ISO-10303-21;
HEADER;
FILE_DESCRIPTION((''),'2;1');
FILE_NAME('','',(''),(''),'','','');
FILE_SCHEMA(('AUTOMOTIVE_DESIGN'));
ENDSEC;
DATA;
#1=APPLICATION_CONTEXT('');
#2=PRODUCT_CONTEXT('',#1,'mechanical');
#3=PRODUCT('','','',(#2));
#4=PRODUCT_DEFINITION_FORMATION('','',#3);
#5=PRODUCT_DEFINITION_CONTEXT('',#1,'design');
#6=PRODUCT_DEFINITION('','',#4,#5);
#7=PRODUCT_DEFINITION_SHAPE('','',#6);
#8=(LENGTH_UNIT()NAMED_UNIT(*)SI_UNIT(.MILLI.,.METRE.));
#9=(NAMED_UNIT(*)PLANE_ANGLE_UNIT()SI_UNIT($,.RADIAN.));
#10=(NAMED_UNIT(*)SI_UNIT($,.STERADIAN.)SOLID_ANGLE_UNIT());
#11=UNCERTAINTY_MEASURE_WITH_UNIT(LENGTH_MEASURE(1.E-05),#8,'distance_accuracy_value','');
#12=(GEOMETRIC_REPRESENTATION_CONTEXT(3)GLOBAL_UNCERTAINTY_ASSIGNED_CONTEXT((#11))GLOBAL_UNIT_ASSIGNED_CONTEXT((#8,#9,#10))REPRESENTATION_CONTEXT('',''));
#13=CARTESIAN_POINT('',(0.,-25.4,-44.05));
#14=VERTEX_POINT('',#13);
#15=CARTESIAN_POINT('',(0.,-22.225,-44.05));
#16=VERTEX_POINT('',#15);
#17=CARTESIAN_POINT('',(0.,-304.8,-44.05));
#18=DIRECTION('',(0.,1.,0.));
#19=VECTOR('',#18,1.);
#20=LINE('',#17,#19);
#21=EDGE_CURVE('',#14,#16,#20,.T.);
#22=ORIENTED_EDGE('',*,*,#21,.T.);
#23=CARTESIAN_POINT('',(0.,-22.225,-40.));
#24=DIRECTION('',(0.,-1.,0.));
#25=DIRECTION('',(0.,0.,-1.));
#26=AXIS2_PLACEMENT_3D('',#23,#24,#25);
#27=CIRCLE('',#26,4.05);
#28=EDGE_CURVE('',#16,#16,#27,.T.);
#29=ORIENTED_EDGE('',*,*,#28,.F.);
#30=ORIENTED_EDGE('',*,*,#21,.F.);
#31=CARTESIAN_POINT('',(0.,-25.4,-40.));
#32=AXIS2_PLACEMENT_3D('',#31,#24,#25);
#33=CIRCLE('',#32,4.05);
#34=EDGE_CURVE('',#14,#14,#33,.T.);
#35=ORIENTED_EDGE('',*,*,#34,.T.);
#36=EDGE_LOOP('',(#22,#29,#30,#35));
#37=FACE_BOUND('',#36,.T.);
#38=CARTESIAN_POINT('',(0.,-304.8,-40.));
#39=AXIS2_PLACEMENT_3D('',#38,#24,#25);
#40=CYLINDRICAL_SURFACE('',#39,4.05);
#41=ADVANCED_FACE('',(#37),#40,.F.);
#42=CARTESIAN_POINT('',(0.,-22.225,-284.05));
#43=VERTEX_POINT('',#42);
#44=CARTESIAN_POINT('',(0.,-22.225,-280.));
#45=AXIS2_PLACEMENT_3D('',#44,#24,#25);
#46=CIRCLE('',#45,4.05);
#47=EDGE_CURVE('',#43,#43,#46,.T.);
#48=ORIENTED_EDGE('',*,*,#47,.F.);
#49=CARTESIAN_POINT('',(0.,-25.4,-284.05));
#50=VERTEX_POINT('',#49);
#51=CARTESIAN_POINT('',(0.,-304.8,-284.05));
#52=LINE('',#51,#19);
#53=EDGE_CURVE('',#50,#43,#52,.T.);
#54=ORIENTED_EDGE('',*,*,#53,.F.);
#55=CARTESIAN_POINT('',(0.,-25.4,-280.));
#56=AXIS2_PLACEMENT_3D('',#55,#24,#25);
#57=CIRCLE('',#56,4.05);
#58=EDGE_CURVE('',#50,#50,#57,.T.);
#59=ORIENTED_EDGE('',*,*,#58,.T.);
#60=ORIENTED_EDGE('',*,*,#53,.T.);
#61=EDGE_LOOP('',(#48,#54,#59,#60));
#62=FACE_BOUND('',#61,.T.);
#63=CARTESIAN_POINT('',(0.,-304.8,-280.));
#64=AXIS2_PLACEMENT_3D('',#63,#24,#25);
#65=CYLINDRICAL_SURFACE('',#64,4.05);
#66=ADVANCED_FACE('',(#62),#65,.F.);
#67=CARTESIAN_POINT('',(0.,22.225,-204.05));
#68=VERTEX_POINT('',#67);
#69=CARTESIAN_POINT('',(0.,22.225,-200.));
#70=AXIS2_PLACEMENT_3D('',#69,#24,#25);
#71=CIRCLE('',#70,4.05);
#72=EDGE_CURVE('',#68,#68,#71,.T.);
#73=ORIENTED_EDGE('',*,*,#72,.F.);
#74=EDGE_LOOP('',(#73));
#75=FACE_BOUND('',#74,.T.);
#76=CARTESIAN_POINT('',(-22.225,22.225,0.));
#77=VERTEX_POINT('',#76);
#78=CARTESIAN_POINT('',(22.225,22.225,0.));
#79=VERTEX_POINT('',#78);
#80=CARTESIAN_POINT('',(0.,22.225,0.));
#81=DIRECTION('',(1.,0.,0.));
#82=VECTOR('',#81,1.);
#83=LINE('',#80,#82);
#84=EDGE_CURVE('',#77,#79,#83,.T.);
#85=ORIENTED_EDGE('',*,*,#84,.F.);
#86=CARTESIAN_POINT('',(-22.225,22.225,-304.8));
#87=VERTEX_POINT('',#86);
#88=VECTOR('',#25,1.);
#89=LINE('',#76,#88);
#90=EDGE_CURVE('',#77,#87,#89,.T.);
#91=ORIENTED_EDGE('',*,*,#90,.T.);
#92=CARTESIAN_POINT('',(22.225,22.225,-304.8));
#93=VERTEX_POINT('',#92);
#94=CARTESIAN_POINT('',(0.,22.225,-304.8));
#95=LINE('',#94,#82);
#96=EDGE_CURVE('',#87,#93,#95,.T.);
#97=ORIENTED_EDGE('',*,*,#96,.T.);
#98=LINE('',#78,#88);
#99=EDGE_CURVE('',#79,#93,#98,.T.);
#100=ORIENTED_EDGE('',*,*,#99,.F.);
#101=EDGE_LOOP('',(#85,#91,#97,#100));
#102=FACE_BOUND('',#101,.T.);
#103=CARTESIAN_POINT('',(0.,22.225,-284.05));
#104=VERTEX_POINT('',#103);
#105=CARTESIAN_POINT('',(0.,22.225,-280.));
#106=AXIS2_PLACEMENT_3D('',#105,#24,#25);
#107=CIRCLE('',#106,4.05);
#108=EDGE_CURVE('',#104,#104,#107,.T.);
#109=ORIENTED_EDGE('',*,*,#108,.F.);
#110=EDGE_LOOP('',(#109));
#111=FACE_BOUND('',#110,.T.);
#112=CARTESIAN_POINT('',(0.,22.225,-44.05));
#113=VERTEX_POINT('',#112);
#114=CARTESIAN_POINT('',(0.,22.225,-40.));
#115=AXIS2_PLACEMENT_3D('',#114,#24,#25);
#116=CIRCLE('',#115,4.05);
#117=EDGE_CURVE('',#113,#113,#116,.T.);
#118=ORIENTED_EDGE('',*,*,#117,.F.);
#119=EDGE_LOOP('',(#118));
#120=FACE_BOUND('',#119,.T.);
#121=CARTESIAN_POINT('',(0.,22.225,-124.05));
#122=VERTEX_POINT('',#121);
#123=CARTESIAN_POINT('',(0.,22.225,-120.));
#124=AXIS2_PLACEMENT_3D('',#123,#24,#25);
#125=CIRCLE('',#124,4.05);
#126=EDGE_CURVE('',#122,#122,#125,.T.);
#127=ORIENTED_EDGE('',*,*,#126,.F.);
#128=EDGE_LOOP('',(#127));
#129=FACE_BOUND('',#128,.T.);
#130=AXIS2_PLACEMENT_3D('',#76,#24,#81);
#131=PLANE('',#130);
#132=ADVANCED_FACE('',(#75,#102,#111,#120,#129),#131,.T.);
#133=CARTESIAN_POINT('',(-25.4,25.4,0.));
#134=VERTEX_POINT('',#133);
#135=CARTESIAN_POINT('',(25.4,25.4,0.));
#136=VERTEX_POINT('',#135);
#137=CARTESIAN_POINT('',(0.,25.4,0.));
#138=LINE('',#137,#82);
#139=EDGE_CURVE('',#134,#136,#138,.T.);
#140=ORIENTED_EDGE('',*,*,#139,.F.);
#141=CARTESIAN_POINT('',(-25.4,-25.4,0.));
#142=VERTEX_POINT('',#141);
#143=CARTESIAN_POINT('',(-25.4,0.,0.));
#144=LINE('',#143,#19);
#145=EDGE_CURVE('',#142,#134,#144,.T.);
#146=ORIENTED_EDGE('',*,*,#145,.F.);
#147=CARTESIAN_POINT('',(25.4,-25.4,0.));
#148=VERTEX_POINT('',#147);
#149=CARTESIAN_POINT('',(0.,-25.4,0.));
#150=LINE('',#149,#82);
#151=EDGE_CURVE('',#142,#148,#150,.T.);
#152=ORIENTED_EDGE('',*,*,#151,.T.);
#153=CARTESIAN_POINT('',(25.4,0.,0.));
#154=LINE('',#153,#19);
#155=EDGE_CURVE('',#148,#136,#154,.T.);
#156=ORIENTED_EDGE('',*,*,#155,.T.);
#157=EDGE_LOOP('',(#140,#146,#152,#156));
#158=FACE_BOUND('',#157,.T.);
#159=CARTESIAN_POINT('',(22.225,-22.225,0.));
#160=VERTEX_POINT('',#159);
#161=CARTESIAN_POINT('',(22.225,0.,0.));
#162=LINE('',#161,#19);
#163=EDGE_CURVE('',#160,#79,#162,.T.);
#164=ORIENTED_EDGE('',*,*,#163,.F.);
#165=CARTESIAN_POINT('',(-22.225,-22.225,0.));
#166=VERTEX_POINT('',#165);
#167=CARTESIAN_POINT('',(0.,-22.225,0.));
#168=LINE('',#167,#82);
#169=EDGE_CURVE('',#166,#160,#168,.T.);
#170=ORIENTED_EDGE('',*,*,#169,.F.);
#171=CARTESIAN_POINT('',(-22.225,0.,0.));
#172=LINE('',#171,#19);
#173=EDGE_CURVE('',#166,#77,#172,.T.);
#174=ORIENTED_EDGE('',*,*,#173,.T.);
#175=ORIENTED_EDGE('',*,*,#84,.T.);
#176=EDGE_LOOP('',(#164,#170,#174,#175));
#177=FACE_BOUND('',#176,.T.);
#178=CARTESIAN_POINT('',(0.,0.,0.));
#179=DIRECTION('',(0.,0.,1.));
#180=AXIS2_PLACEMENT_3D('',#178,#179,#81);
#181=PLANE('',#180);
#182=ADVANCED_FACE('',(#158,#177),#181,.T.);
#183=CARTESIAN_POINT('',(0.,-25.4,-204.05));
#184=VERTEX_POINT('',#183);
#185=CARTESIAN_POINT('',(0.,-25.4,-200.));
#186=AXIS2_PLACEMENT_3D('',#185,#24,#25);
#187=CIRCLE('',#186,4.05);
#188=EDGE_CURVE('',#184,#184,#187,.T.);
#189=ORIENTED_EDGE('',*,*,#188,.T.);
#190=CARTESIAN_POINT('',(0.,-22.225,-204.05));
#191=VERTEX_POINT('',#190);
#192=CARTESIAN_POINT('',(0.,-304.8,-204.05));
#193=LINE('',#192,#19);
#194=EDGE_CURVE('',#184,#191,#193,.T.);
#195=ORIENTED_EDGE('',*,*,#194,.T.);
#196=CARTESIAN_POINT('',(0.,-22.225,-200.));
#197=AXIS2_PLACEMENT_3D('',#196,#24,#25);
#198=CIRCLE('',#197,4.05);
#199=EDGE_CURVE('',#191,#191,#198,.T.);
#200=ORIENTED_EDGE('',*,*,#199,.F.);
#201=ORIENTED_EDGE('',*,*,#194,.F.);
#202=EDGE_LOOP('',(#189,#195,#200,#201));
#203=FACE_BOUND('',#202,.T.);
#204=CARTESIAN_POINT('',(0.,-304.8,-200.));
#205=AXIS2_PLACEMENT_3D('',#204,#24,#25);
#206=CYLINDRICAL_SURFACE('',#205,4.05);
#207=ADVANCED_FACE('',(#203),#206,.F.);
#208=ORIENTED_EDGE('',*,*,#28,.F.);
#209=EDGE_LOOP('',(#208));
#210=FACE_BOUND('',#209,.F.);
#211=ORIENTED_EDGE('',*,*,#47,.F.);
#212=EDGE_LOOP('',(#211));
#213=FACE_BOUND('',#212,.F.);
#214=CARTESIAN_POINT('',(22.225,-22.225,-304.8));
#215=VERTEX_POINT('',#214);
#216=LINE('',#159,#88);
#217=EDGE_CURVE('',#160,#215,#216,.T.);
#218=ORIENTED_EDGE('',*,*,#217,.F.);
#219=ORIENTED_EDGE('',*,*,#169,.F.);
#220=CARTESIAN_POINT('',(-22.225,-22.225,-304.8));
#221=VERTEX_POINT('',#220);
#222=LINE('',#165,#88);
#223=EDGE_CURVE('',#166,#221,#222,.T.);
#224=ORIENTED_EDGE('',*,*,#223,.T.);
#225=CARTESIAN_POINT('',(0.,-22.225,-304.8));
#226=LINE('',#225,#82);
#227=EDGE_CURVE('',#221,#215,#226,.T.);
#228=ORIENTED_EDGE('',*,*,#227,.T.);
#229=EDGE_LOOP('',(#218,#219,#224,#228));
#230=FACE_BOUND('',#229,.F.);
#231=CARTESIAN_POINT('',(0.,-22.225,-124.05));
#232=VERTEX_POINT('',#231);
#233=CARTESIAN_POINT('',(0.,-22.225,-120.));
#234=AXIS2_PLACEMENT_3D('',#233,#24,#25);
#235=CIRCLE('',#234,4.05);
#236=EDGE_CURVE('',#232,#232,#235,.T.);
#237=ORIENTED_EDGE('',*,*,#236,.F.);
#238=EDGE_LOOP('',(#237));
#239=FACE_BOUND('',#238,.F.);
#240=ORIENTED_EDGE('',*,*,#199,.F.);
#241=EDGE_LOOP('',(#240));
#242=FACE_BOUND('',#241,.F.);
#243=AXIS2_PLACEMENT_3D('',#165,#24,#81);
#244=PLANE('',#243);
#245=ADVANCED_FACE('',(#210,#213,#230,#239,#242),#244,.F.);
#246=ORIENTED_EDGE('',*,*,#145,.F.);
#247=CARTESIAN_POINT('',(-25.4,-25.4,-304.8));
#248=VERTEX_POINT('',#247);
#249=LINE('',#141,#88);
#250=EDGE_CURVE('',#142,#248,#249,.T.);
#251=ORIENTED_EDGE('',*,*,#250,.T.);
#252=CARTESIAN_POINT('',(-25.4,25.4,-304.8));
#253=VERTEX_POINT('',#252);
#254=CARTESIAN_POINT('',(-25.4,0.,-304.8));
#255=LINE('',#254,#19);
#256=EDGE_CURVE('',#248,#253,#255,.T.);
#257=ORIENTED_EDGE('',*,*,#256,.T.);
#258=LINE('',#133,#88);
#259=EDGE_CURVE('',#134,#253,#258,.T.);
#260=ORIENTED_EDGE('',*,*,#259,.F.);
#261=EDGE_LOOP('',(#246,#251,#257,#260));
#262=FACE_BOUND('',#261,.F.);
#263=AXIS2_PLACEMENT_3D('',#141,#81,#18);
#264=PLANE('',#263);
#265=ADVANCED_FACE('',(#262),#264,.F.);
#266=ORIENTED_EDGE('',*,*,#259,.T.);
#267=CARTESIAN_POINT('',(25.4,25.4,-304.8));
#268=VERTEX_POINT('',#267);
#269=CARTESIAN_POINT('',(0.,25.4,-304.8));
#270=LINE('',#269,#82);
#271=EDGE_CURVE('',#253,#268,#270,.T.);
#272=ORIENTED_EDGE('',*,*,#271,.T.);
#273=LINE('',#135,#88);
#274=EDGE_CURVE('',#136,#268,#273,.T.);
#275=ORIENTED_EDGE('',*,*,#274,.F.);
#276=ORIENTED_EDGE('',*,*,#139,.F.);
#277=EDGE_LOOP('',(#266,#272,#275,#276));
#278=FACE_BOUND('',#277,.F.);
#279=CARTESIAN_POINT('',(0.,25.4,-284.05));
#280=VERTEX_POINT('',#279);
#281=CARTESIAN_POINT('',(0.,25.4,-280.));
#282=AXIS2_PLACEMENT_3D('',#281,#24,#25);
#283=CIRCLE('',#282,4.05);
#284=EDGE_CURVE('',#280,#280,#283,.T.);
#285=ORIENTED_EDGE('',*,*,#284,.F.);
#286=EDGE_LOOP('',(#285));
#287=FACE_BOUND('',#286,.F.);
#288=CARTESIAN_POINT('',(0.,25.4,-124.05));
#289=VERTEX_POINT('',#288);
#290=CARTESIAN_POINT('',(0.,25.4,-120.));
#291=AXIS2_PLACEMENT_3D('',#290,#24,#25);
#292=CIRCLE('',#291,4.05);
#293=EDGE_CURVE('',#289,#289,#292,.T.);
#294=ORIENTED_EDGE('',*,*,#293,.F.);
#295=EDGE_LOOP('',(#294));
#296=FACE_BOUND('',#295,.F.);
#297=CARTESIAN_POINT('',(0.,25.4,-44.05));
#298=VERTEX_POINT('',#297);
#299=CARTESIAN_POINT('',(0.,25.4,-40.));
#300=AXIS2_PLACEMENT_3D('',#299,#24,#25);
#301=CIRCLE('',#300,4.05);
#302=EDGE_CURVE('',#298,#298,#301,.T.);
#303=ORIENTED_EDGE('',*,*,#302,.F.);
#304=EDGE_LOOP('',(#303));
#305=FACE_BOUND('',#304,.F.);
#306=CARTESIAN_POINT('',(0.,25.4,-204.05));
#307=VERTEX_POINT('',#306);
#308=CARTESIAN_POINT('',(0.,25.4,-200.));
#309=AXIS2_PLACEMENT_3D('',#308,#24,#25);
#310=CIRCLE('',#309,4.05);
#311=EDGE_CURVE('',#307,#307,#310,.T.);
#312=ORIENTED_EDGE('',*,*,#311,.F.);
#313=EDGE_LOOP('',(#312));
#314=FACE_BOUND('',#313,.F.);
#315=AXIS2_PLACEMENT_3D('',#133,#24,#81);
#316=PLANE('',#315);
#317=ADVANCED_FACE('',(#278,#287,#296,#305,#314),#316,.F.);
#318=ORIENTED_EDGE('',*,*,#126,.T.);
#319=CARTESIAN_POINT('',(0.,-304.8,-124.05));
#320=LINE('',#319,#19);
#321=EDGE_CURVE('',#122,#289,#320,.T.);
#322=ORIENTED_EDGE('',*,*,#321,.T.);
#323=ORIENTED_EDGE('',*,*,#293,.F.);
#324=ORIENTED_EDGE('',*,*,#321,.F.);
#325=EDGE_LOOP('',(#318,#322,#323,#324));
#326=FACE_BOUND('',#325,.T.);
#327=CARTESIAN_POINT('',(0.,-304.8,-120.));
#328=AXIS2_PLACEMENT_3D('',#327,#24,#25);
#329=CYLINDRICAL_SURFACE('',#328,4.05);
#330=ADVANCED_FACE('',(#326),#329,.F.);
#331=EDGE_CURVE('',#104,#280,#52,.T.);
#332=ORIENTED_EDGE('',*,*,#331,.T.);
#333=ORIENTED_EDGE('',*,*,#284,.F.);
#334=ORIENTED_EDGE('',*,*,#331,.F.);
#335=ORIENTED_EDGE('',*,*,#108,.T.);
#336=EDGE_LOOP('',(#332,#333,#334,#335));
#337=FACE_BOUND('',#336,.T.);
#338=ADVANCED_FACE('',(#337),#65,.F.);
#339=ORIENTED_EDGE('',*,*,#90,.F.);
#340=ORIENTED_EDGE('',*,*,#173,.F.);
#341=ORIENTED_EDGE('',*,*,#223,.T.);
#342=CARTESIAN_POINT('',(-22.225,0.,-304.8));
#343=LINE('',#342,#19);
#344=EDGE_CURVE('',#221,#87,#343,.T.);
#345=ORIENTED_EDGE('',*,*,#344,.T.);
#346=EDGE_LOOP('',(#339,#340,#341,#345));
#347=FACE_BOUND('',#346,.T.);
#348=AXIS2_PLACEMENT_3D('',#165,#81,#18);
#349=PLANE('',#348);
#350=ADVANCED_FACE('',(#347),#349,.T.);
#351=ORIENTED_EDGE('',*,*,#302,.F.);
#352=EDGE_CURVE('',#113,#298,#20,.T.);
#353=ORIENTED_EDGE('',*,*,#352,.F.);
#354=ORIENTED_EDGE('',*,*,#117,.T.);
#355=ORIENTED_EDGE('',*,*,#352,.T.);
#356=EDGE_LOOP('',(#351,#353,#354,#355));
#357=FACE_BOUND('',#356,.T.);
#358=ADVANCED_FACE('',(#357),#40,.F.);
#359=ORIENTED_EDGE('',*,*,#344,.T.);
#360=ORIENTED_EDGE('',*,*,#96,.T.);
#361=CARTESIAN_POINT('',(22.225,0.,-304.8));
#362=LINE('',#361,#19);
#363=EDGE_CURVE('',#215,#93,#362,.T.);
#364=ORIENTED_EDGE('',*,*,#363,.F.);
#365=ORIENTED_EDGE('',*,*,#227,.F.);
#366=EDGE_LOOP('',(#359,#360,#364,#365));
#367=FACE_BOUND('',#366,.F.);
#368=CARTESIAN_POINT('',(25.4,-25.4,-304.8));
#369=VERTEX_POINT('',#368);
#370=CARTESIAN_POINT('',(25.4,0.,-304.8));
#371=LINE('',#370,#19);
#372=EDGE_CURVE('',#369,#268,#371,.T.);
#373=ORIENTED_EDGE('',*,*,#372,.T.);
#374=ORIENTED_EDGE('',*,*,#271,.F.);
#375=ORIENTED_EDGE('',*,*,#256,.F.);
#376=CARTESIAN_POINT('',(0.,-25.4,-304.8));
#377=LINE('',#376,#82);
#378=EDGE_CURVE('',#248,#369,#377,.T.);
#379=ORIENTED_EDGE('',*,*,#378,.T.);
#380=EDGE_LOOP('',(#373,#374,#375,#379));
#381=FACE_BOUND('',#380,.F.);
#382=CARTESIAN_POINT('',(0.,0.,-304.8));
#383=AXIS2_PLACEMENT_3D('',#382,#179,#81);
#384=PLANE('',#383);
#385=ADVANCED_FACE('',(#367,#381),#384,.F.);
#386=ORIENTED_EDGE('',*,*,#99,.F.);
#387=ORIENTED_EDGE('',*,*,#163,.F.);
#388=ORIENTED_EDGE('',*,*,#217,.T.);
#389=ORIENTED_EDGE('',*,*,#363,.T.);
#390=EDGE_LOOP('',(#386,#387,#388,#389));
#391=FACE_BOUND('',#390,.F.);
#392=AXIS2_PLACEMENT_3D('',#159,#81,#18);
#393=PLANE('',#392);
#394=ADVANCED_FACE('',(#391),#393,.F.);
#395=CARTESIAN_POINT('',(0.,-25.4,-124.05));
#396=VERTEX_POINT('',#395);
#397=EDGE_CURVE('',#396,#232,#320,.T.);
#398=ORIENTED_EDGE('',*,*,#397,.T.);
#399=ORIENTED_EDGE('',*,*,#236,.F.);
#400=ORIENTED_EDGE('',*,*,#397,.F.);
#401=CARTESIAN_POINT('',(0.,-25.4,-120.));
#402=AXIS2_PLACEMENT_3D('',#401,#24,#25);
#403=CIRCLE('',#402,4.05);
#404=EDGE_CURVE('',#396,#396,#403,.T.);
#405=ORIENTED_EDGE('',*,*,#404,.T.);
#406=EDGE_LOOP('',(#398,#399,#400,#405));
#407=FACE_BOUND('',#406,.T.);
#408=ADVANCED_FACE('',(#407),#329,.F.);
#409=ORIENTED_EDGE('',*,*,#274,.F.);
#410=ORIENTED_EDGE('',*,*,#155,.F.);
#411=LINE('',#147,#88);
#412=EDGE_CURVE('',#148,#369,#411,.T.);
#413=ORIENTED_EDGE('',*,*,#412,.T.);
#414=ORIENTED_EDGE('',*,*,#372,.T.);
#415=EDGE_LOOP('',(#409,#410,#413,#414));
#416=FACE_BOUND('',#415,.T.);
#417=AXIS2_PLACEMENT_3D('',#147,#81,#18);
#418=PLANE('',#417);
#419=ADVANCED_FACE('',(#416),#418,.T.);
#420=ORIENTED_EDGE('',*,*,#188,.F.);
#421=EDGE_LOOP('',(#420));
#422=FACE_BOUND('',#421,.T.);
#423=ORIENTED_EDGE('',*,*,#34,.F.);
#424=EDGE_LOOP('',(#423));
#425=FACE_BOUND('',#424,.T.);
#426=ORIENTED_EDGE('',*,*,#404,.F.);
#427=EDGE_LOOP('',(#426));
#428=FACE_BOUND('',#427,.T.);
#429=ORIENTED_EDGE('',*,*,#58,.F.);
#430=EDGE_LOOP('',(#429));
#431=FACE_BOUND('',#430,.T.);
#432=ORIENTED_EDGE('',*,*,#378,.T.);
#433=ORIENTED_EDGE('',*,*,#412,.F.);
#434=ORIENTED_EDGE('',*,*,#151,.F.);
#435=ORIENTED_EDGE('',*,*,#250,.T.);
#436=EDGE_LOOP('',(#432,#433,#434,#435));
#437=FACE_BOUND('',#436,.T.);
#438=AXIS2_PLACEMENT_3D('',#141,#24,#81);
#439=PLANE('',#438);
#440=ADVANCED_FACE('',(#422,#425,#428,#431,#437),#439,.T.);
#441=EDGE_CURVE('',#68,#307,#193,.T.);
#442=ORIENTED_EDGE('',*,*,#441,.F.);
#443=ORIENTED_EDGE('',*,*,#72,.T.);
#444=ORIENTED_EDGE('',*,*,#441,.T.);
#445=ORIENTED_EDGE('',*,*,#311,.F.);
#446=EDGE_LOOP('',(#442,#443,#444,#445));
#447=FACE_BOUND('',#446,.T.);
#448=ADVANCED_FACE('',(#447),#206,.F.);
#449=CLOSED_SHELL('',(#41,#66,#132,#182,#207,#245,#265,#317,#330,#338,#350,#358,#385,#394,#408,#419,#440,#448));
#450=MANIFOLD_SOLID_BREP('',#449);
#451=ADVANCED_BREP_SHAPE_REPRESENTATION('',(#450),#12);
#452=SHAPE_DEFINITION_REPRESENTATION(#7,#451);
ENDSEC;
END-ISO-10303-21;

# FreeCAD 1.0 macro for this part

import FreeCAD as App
import Part
import Sketcher

V = App.Vector
Q = App.Units.Quantity

doc = App.newDocument("Part")
body = doc.addObject("PartDesign::Body", "Body")

# Sketch on XY plane
sketch1 = doc.addObject("Sketcher::SketchObject", "Sketch")
body.addObject(sketch1)
sketch1.AttachmentSupport = (doc.XY_Plane, [""])
sketch1.MapMode = "FlatFace"
sketch1.addGeometry([
    Part.LineSegment(V(-25, 25, 0), V(-25, -25, 0)),  # 0
    Part.LineSegment(V(-25, -25, 0), V(25, -25, 0)),  # 1
    Part.LineSegment(V(25, -25, 0), V(25, 25, 0)),  # 2
    Part.LineSegment(V(25, 25, 0), V(-25, 25, 0)),  # 3
    Part.LineSegment(V(22, -22, 0), V(-22, -22, 0)),  # 4
    Part.LineSegment(V(-22, -22, 0), V(-22, 22, 0)),  # 5
    Part.LineSegment(V(-22, 22, 0), V(22, 22, 0)),  # 6
    Part.LineSegment(V(22, 22, 0), V(22, -22, 0)),  # 7
], False)
sketch1.addConstraint([
    Sketcher.Constraint("Coincident", 0, 2, 1, 1),
    Sketcher.Constraint("Coincident", 1, 2, 2, 1),
    Sketcher.Constraint("Coincident", 2, 2, 3, 1),
    Sketcher.Constraint("Coincident", 3, 2, 0, 1),
    Sketcher.Constraint("Coincident", 4, 2, 5, 1),
    Sketcher.Constraint("Coincident", 5, 2, 6, 1),
    Sketcher.Constraint("Coincident", 6, 2, 7, 1),
    Sketcher.Constraint("Coincident", 7, 2, 4, 1),
    Sketcher.Constraint("Vertical", 0),
    Sketcher.Constraint("Horizontal", 1),
    Sketcher.Constraint("Vertical", 2),
    Sketcher.Constraint("Horizontal", 3),
    Sketcher.Constraint("Horizontal", 4),
    Sketcher.Constraint("Vertical", 5),
    Sketcher.Constraint("Horizontal", 6),
    Sketcher.Constraint("Vertical", 7),
    Sketcher.Constraint("Symmetric", 0, 2, 2, 2, -1, 1),
    Sketcher.Constraint("Symmetric", 4, 2, 6, 2, -1, 1),
    Sketcher.Constraint("Equal", 3, 0),
    Sketcher.Constraint("Equal", 6, 5),
    Sketcher.Constraint("DistanceX", 1, 1, 1, 2, Q("2 in")),
    Sketcher.Constraint("DistanceX", 4, 2, 4, 1, Q("1.75 in")),
])
pad1 = doc.addObject("PartDesign::Pad", "Pad")
body.addObject(pad1)
pad1.Profile = sketch1
pad1.Length = Q("12 in")
pad1.Reversed = True

# Sketch on XZ plane
sketch2 = doc.addObject("Sketcher::SketchObject", "Sketch001")
body.addObject(sketch2)
sketch2.AttachmentSupport = (doc.XZ_Plane, [""])
sketch2.MapMode = "FlatFace"
sketch2.addGeometry([
    Part.Circle(V(0, -40, 0), V(0, 0, 1), 4),
    Part.Circle(V(0, -120, 0), V(0, 0, 1), 4),
    Part.Circle(V(0, -200, 0), V(0, 0, 1), 4),
    Part.Circle(V(0, -280, 0), V(0, 0, 1), 4),
], False)
sketch2.addConstraint([
    Sketcher.Constraint("Equal", 0, 1),
    Sketcher.Constraint("Equal", 1, 2),
    Sketcher.Constraint("Equal", 2, 3),
    Sketcher.Constraint("PointOnObject", 0, 3, -2),
    Sketcher.Constraint("PointOnObject", 1, 3, -2),
    Sketcher.Constraint("PointOnObject", 2, 3, -2),
    Sketcher.Constraint("PointOnObject", 3, 3, -2),
    Sketcher.Constraint("Diameter", 0, Q("8.1 mm")),
    Sketcher.Constraint("DistanceY", 0, 3, -1, 1, Q("40 mm")),
    Sketcher.Constraint("DistanceY", 1, 3, -1, 1, Q("120 mm")),
    Sketcher.Constraint("DistanceY", 2, 3, -1, 1, Q("200 mm")),
    Sketcher.Constraint("DistanceY", 3, 3, -1, 1, Q("280 mm")),
])
pocket1 = doc.addObject("PartDesign::Pocket", "Pocket")
body.addObject(pocket1)
pocket1.Profile = sketch2
pocket1.Type = "ThroughAll"
pocket1.Midplane = True

doc.recompute()
